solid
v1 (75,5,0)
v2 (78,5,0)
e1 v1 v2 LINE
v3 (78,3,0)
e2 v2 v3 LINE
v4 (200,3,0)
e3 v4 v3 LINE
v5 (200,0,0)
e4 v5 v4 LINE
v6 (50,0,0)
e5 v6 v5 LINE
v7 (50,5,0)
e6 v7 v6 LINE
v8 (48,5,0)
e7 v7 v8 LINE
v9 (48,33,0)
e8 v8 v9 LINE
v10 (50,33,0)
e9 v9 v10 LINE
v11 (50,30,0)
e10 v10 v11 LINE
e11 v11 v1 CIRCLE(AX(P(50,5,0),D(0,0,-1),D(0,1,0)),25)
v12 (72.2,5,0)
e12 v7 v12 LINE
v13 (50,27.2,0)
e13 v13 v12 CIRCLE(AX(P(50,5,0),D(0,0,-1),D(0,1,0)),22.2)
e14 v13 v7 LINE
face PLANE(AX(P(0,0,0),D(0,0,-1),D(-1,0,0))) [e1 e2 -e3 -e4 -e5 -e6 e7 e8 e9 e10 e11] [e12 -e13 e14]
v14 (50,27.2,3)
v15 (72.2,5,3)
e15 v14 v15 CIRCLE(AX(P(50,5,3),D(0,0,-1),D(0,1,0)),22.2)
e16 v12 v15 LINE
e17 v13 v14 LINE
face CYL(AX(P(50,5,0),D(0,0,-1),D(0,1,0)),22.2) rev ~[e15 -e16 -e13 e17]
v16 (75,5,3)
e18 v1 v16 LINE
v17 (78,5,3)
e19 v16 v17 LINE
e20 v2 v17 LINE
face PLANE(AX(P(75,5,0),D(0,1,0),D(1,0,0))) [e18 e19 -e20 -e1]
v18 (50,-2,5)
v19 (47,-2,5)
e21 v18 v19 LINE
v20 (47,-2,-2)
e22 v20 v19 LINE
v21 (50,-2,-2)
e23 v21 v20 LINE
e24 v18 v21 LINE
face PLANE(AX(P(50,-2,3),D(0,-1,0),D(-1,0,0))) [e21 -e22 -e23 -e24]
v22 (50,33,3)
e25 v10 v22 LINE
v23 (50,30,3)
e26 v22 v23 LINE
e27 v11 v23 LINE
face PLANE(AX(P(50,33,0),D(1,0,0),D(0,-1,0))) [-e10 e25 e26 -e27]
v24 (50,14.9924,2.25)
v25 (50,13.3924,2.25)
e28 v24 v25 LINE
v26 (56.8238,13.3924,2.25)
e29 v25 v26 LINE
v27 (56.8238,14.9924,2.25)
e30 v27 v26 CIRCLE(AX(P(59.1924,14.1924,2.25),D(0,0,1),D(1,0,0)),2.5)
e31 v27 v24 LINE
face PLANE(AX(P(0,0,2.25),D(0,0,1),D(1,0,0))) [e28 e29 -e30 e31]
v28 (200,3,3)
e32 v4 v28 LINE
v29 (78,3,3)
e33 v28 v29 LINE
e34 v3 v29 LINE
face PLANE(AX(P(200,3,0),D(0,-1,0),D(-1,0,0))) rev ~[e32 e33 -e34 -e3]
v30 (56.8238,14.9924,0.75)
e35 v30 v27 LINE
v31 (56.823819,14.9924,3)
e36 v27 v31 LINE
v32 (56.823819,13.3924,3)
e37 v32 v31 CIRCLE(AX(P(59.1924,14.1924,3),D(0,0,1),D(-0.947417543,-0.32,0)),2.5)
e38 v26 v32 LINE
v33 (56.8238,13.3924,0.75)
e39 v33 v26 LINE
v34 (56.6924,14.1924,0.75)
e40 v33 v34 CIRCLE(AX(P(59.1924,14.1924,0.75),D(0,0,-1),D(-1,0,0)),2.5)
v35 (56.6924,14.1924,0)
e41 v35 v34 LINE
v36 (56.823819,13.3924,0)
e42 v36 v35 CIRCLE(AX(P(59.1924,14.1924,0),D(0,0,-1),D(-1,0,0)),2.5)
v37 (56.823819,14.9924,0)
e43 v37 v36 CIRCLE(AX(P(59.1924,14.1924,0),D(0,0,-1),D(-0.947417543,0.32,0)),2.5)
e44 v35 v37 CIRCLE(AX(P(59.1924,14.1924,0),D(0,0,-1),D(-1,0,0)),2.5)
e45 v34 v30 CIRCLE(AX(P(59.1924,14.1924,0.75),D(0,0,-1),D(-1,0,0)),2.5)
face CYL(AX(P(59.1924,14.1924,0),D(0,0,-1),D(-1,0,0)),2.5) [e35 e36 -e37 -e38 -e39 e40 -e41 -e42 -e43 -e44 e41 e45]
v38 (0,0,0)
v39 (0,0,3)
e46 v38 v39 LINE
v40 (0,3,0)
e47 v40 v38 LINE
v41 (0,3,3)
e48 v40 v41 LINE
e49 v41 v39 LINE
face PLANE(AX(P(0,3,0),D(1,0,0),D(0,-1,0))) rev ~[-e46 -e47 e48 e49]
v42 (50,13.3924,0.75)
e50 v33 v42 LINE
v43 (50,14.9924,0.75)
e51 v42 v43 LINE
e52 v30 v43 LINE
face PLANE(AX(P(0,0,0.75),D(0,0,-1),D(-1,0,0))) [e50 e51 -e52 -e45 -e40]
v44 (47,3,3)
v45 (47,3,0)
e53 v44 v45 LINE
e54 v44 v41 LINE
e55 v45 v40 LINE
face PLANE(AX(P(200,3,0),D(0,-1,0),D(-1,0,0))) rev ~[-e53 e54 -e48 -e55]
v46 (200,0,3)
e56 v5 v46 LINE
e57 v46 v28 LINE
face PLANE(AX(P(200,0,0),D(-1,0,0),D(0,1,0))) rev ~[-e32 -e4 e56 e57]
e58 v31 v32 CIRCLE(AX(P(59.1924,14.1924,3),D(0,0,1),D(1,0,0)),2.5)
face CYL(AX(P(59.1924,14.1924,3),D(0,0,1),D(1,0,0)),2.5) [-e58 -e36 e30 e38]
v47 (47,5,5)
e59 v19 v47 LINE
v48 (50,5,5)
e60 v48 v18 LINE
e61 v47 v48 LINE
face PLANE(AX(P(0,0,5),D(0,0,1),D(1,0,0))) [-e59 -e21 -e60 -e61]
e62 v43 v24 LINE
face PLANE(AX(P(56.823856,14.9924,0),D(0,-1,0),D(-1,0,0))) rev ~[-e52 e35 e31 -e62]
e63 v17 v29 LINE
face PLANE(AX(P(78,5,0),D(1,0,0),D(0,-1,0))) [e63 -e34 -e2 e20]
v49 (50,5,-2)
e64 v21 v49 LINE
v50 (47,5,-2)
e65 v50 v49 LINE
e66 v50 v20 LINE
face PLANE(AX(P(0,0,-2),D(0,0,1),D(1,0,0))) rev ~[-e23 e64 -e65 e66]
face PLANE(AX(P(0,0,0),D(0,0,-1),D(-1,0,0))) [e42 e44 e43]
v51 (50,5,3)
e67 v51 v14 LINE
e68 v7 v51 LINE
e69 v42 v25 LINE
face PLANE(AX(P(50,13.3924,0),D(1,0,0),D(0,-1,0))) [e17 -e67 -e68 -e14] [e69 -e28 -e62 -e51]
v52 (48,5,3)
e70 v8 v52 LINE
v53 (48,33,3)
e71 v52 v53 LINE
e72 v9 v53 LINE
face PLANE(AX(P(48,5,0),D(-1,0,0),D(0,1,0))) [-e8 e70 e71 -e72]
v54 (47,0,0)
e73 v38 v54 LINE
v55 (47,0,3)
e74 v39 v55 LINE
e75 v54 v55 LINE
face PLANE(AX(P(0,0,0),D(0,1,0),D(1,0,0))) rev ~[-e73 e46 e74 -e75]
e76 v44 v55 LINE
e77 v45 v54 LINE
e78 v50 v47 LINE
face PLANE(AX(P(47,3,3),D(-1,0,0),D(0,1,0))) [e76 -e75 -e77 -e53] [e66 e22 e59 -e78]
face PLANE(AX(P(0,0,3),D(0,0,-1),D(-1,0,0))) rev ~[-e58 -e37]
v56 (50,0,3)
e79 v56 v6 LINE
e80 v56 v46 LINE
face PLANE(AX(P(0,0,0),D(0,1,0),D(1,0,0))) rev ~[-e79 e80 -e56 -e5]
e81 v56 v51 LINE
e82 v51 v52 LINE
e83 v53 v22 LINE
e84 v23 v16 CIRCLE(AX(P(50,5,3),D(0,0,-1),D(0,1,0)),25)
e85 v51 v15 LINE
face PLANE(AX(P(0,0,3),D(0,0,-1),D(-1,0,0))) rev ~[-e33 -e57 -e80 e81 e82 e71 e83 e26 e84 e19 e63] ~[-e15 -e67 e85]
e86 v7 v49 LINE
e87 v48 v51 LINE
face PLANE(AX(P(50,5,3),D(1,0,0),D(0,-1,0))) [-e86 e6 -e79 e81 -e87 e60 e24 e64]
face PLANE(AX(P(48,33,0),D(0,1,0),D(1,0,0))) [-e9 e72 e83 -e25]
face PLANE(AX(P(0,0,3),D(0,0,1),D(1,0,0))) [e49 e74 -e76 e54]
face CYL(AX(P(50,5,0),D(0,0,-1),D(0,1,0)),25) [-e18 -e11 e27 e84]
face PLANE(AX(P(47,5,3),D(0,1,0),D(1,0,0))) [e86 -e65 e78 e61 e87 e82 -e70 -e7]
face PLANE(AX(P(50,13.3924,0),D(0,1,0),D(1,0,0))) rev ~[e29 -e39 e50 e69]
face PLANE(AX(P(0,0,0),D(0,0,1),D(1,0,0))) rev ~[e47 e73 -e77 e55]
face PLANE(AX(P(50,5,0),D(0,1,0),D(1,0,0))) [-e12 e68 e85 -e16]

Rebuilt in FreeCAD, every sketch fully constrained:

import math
import FreeCAD as App
import Part
import Sketcher

V = App.Vector
Q = App.Units.Quantity

doc = App.newDocument("Part")
body = doc.addObject("PartDesign::Body", "Body")

# Sketch on XY plane
sketch1 = doc.addObject("Sketcher::SketchObject", "Sketch")
body.addObject(sketch1)
sketch1.AttachmentSupport = (doc.XY_Plane, [""])
sketch1.MapMode = "FlatFace"
sketch1.addGeometry([
    Part.LineSegment(V(0, 3, 0), V(0, 0, 0)),
    Part.LineSegment(V(0, 0, 0), V(200, 0, 0)),
    Part.LineSegment(V(200, 0, 0), V(200, 3, 0)),
    Part.LineSegment(V(200, 3, 0), V(0, 3, 0)),
], False)
sketch1.addConstraint([
    Sketcher.Constraint("Coincident", 0, 2, 1, 1),
    Sketcher.Constraint("Coincident", 1, 2, 2, 1),
    Sketcher.Constraint("Coincident", 2, 2, 3, 1),
    Sketcher.Constraint("Coincident", 3, 2, 0, 1),
    Sketcher.Constraint("Vertical", 0),
    Sketcher.Constraint("Horizontal", 1),
    Sketcher.Constraint("Vertical", 2),
    Sketcher.Constraint("Horizontal", 3),
    Sketcher.Constraint("Coincident", 0, 2, -1, 1),
    Sketcher.Constraint("DistanceX", 1, 1, 1, 2, Q("200 mm")),
    Sketcher.Constraint("DistanceY", 0, 2, 0, 1, Q("3 mm")),
])
pad1 = doc.addObject("PartDesign::Pad", "Pad")
body.addObject(pad1)
pad1.Profile = sketch1
pad1.Length = 3

# Sketch on XY plane
sketch2 = doc.addObject("Sketcher::SketchObject", "Sketch001")
body.addObject(sketch2)
sketch2.AttachmentSupport = (doc.XY_Plane, [""])
sketch2.MapMode = "FlatFace"
sketch2.AttachmentOffset = App.Placement(V(0, 0, 3), App.Rotation())
sketch2.addGeometry([
    Part.LineSegment(V(50, 5, 0), V(47, 5, 0)),
    Part.LineSegment(V(47, 5, 0), V(47, -2, 0)),
    Part.LineSegment(V(47, -2, 0), V(50, -2, 0)),
    Part.LineSegment(V(50, -2, 0), V(50, 5, 0)),
], False)
sketch2.addConstraint([
    Sketcher.Constraint("Coincident", 0, 2, 1, 1),
    Sketcher.Constraint("Coincident", 1, 2, 2, 1),
    Sketcher.Constraint("Coincident", 2, 2, 3, 1),
    Sketcher.Constraint("Coincident", 3, 2, 0, 1),
    Sketcher.Constraint("Horizontal", 0),
    Sketcher.Constraint("Vertical", 1),
    Sketcher.Constraint("Horizontal", 2),
    Sketcher.Constraint("Vertical", 3),
    Sketcher.Constraint("DistanceX", -1, 1, 0, 2, Q("47 mm")),
    Sketcher.Constraint("DistanceY", 1, 2, -1, 1, Q("2 mm")),
    Sketcher.Constraint("DistanceX", 0, 2, 0, 1, Q("3 mm")),
    Sketcher.Constraint("DistanceY", 1, 2, 1, 1, Q("7 mm")),
])
pad2 = doc.addObject("PartDesign::Pad", "Pad001")
body.addObject(pad2)
pad2.Profile = sketch2
pad2.Type = "TwoLengths"
pad2.Length = 2
pad2.Length2 = 5

# Sketch on XY plane
sketch3 = doc.addObject("Sketcher::SketchObject", "Sketch002")
body.addObject(sketch3)
sketch3.AttachmentSupport = (doc.XY_Plane, [""])
sketch3.MapMode = "FlatFace"
sketch3.addGeometry([
    Part.LineSegment(V(50, 5, 0), V(48, 5, 0)),  # 0
    Part.LineSegment(V(48, 5, 0), V(48, 33, 0)),  # 1
    Part.LineSegment(V(48, 33, 0), V(50, 33, 0)),  # 2
    Part.LineSegment(V(50, 33, 0), V(50, 30, 0)),  # 3
    Part.ArcOfCircle(Part.Circle(V(50, 5, 0), V(0, 0, 1), 25), math.radians(0), math.radians(90)),  # 4
    Part.LineSegment(V(75, 5, 0), V(78, 5, 0)),  # 5
    Part.LineSegment(V(78, 5, 0), V(78, 3, 0)),  # 6
    Part.LineSegment(V(78, 3, 0), V(50, 3, 0)),  # 7
    Part.LineSegment(V(50, 3, 0), V(50, 5, 0)),  # 8
    Part.LineSegment(V(50, 5, 0), V(72.2, 5, 0)),  # 9
    Part.ArcOfCircle(Part.Circle(V(50, 5, 0), V(0, 0, 1), 22.2), math.radians(0), math.radians(90)),  # 10
    Part.LineSegment(V(50, 27.2, 0), V(50, 15, 0)),  # 11
    Part.LineSegment(V(50, 15, 0), V(56.8, 15, 0)),  # 12
    Part.ArcOfCircle(Part.Circle(V(59.2, 14.2, 0), V(0, 0, 1), 2.5), math.radians(-161), math.radians(161)),  # 13
    Part.LineSegment(V(56.8, 13.4, 0), V(50, 13.4, 0)),  # 14
    Part.LineSegment(V(50, 13.4, 0), V(50, 5, 0)),  # 15
], False)
sketch3.addConstraint([
    Sketcher.Constraint("Coincident", 0, 2, 1, 1),
    Sketcher.Constraint("Coincident", 1, 2, 2, 1),
    Sketcher.Constraint("Coincident", 2, 2, 3, 1),
    Sketcher.Constraint("Coincident", 3, 2, 4, 2),
    Sketcher.Constraint("Coincident", 4, 1, 5, 1),
    Sketcher.Constraint("Coincident", 5, 2, 6, 1),
    Sketcher.Constraint("Coincident", 6, 2, 7, 1),
    Sketcher.Constraint("Coincident", 7, 2, 8, 1),
    Sketcher.Constraint("Coincident", 8, 2, 0, 1),
    Sketcher.Constraint("Coincident", 9, 2, 10, 1),
    Sketcher.Constraint("Coincident", 10, 2, 11, 1),
    Sketcher.Constraint("Coincident", 11, 2, 12, 1),
    Sketcher.Constraint("Coincident", 12, 2, 13, 2),
    Sketcher.Constraint("Coincident", 13, 1, 14, 1),
    Sketcher.Constraint("Coincident", 14, 2, 15, 1),
    Sketcher.Constraint("Coincident", 15, 2, 9, 1),
    Sketcher.Constraint("Horizontal", 0),
    Sketcher.Constraint("Vertical", 1),
    Sketcher.Constraint("Horizontal", 2),
    Sketcher.Constraint("Vertical", 3),
    Sketcher.Constraint("Horizontal", 5),
    Sketcher.Constraint("Vertical", 6),
    Sketcher.Constraint("Horizontal", 7),
    Sketcher.Constraint("Vertical", 8),
    Sketcher.Constraint("Horizontal", 9),
    Sketcher.Constraint("Vertical", 11),
    Sketcher.Constraint("Horizontal", 12),
    Sketcher.Constraint("Horizontal", 14),
    Sketcher.Constraint("Vertical", 15),
    Sketcher.Constraint("Coincident", 10, 3, 4, 3),
    Sketcher.Constraint("Coincident", 8, 2, 4, 3),
    Sketcher.Constraint("Coincident", 15, 2, 4, 3),
    Sketcher.Constraint("Horizontal", 0, 2, 4, 1),
    Sketcher.Constraint("Vertical", 10, 3, 2, 2),
    Sketcher.Constraint("Vertical", 8, 2, 10, 2),
    Sketcher.Constraint("Vertical", 12, 2, 13, 1),
    Sketcher.Constraint("Equal", 7, 1),
    Sketcher.Constraint("Equal", 2, 6),
    Sketcher.Constraint("Radius", 4, Q("25 mm")),
    Sketcher.Constraint("Radius", 13, Q("2.5 mm")),
    Sketcher.Constraint("DistanceX", 0, 2, 0, 1, Q("2 mm")),
    Sketcher.Constraint("DistanceX", 7, 2, 7, 1, Q("28 mm")),
    Sketcher.Constraint("DistanceX", -1, 1, 4, 3, Q("50 mm")),
    Sketcher.Constraint("DistanceY", -1, 1, 4, 3, Q("5 mm")),
    Sketcher.Constraint("Radius", 10, Q("22.2 mm")),
    Sketcher.Constraint("DistanceY", 13, 3, 11, 2, Q("0.8 mm")),
    Sketcher.Constraint("DistanceX", 12, 1, 12, 2, Q("6.8239 mm")),
    Sketcher.Constraint("DistanceY", 11, 2, 11, 1, Q("12.2076 mm")),
])
pad3 = doc.addObject("PartDesign::Pad", "Pad002")
body.addObject(pad3)
pad3.Profile = sketch3
pad3.Length = 3

# Sketch on XY plane
sketch4 = doc.addObject("Sketcher::SketchObject", "Sketch003")
body.addObject(sketch4)
sketch4.AttachmentSupport = (doc.XY_Plane, [""])
sketch4.MapMode = "FlatFace"
sketch4.addGeometry([
    Part.LineSegment(V(50, 15, 0), V(56.8, 15, 0)),
    Part.ArcOfCircle(Part.Circle(V(59.2, 14.2, 0), V(0, 0, 1), 2.5), math.radians(161), math.radians(199)),
    Part.LineSegment(V(56.8, 13.4, 0), V(50, 13.4, 0)),
    Part.LineSegment(V(50, 13.4, 0), V(50, 15, 0)),
], False)
sketch4.addConstraint([
    Sketcher.Constraint("Coincident", 0, 2, 1, 1),
    Sketcher.Constraint("Coincident", 1, 2, 2, 1),
    Sketcher.Constraint("Coincident", 2, 2, 3, 1),
    Sketcher.Constraint("Coincident", 3, 2, 0, 1),
    Sketcher.Constraint("Horizontal", 0),
    Sketcher.Constraint("Horizontal", 2),
    Sketcher.Constraint("Vertical", 3),
    Sketcher.Constraint("Vertical", 0, 2, 1, 2),
    Sketcher.Constraint("Radius", 1, Q("2.5 mm")),
    Sketcher.Constraint("DistanceY", 3, 1, 3, 2, Q("1.6 mm")),
    Sketcher.Constraint("DistanceX", -1, 1, 2, 2, Q("50 mm")),
    Sketcher.Constraint("DistanceX", 0, 1, 0, 2, Q("6.8238 mm")),
    Sketcher.Constraint("DistanceY", -1, 1, 1, 3, Q("14.1924 mm")),
])
pocket1 = doc.addObject("PartDesign::Pocket", "Pocket")
body.addObject(pocket1)
pocket1.Profile = sketch4
pocket1.Length = 0.75
pocket1.Reversed = True

# Sketch on XY plane
sketch5 = doc.addObject("Sketcher::SketchObject", "Sketch004")
body.addObject(sketch5)
sketch5.AttachmentSupport = (doc.XY_Plane, [""])
sketch5.MapMode = "FlatFace"
sketch5.AttachmentOffset = App.Placement(V(0, 0, 3), App.Rotation())
sketch5.addGeometry([
    Part.LineSegment(V(50, 13.4, 0), V(56.8, 13.4, 0)),
    Part.ArcOfCircle(Part.Circle(V(59.2, 14.2, 0), V(0, 0, 1), 2.5), math.radians(161), math.radians(199)),
    Part.LineSegment(V(56.8, 15, 0), V(50, 15, 0)),
    Part.LineSegment(V(50, 15, 0), V(50, 13.4, 0)),
], False)
sketch5.addConstraint([
    Sketcher.Constraint("Coincident", 0, 2, 1, 2),
    Sketcher.Constraint("Coincident", 1, 1, 2, 1),
    Sketcher.Constraint("Coincident", 2, 2, 3, 1),
    Sketcher.Constraint("Coincident", 3, 2, 0, 1),
    Sketcher.Constraint("Horizontal", 0),
    Sketcher.Constraint("Horizontal", 2),
    Sketcher.Constraint("Vertical", 3),
    Sketcher.Constraint("Vertical", 0, 2, 1, 1),
    Sketcher.Constraint("Radius", 1, Q("2.5 mm")),
    Sketcher.Constraint("DistanceY", 3, 2, 3, 1, Q("1.6 mm")),
    Sketcher.Constraint("DistanceX", -1, 1, 2, 2, Q("50 mm")),
    Sketcher.Constraint("DistanceX", 0, 1, 0, 2, Q("6.8238 mm")),
    Sketcher.Constraint("DistanceY", -1, 1, 1, 3, Q("14.1924 mm")),
])
pocket2 = doc.addObject("PartDesign::Pocket", "Pocket001")
body.addObject(pocket2)
pocket2.Profile = sketch5
pocket2.Length = 0.75

doc.recompute()
